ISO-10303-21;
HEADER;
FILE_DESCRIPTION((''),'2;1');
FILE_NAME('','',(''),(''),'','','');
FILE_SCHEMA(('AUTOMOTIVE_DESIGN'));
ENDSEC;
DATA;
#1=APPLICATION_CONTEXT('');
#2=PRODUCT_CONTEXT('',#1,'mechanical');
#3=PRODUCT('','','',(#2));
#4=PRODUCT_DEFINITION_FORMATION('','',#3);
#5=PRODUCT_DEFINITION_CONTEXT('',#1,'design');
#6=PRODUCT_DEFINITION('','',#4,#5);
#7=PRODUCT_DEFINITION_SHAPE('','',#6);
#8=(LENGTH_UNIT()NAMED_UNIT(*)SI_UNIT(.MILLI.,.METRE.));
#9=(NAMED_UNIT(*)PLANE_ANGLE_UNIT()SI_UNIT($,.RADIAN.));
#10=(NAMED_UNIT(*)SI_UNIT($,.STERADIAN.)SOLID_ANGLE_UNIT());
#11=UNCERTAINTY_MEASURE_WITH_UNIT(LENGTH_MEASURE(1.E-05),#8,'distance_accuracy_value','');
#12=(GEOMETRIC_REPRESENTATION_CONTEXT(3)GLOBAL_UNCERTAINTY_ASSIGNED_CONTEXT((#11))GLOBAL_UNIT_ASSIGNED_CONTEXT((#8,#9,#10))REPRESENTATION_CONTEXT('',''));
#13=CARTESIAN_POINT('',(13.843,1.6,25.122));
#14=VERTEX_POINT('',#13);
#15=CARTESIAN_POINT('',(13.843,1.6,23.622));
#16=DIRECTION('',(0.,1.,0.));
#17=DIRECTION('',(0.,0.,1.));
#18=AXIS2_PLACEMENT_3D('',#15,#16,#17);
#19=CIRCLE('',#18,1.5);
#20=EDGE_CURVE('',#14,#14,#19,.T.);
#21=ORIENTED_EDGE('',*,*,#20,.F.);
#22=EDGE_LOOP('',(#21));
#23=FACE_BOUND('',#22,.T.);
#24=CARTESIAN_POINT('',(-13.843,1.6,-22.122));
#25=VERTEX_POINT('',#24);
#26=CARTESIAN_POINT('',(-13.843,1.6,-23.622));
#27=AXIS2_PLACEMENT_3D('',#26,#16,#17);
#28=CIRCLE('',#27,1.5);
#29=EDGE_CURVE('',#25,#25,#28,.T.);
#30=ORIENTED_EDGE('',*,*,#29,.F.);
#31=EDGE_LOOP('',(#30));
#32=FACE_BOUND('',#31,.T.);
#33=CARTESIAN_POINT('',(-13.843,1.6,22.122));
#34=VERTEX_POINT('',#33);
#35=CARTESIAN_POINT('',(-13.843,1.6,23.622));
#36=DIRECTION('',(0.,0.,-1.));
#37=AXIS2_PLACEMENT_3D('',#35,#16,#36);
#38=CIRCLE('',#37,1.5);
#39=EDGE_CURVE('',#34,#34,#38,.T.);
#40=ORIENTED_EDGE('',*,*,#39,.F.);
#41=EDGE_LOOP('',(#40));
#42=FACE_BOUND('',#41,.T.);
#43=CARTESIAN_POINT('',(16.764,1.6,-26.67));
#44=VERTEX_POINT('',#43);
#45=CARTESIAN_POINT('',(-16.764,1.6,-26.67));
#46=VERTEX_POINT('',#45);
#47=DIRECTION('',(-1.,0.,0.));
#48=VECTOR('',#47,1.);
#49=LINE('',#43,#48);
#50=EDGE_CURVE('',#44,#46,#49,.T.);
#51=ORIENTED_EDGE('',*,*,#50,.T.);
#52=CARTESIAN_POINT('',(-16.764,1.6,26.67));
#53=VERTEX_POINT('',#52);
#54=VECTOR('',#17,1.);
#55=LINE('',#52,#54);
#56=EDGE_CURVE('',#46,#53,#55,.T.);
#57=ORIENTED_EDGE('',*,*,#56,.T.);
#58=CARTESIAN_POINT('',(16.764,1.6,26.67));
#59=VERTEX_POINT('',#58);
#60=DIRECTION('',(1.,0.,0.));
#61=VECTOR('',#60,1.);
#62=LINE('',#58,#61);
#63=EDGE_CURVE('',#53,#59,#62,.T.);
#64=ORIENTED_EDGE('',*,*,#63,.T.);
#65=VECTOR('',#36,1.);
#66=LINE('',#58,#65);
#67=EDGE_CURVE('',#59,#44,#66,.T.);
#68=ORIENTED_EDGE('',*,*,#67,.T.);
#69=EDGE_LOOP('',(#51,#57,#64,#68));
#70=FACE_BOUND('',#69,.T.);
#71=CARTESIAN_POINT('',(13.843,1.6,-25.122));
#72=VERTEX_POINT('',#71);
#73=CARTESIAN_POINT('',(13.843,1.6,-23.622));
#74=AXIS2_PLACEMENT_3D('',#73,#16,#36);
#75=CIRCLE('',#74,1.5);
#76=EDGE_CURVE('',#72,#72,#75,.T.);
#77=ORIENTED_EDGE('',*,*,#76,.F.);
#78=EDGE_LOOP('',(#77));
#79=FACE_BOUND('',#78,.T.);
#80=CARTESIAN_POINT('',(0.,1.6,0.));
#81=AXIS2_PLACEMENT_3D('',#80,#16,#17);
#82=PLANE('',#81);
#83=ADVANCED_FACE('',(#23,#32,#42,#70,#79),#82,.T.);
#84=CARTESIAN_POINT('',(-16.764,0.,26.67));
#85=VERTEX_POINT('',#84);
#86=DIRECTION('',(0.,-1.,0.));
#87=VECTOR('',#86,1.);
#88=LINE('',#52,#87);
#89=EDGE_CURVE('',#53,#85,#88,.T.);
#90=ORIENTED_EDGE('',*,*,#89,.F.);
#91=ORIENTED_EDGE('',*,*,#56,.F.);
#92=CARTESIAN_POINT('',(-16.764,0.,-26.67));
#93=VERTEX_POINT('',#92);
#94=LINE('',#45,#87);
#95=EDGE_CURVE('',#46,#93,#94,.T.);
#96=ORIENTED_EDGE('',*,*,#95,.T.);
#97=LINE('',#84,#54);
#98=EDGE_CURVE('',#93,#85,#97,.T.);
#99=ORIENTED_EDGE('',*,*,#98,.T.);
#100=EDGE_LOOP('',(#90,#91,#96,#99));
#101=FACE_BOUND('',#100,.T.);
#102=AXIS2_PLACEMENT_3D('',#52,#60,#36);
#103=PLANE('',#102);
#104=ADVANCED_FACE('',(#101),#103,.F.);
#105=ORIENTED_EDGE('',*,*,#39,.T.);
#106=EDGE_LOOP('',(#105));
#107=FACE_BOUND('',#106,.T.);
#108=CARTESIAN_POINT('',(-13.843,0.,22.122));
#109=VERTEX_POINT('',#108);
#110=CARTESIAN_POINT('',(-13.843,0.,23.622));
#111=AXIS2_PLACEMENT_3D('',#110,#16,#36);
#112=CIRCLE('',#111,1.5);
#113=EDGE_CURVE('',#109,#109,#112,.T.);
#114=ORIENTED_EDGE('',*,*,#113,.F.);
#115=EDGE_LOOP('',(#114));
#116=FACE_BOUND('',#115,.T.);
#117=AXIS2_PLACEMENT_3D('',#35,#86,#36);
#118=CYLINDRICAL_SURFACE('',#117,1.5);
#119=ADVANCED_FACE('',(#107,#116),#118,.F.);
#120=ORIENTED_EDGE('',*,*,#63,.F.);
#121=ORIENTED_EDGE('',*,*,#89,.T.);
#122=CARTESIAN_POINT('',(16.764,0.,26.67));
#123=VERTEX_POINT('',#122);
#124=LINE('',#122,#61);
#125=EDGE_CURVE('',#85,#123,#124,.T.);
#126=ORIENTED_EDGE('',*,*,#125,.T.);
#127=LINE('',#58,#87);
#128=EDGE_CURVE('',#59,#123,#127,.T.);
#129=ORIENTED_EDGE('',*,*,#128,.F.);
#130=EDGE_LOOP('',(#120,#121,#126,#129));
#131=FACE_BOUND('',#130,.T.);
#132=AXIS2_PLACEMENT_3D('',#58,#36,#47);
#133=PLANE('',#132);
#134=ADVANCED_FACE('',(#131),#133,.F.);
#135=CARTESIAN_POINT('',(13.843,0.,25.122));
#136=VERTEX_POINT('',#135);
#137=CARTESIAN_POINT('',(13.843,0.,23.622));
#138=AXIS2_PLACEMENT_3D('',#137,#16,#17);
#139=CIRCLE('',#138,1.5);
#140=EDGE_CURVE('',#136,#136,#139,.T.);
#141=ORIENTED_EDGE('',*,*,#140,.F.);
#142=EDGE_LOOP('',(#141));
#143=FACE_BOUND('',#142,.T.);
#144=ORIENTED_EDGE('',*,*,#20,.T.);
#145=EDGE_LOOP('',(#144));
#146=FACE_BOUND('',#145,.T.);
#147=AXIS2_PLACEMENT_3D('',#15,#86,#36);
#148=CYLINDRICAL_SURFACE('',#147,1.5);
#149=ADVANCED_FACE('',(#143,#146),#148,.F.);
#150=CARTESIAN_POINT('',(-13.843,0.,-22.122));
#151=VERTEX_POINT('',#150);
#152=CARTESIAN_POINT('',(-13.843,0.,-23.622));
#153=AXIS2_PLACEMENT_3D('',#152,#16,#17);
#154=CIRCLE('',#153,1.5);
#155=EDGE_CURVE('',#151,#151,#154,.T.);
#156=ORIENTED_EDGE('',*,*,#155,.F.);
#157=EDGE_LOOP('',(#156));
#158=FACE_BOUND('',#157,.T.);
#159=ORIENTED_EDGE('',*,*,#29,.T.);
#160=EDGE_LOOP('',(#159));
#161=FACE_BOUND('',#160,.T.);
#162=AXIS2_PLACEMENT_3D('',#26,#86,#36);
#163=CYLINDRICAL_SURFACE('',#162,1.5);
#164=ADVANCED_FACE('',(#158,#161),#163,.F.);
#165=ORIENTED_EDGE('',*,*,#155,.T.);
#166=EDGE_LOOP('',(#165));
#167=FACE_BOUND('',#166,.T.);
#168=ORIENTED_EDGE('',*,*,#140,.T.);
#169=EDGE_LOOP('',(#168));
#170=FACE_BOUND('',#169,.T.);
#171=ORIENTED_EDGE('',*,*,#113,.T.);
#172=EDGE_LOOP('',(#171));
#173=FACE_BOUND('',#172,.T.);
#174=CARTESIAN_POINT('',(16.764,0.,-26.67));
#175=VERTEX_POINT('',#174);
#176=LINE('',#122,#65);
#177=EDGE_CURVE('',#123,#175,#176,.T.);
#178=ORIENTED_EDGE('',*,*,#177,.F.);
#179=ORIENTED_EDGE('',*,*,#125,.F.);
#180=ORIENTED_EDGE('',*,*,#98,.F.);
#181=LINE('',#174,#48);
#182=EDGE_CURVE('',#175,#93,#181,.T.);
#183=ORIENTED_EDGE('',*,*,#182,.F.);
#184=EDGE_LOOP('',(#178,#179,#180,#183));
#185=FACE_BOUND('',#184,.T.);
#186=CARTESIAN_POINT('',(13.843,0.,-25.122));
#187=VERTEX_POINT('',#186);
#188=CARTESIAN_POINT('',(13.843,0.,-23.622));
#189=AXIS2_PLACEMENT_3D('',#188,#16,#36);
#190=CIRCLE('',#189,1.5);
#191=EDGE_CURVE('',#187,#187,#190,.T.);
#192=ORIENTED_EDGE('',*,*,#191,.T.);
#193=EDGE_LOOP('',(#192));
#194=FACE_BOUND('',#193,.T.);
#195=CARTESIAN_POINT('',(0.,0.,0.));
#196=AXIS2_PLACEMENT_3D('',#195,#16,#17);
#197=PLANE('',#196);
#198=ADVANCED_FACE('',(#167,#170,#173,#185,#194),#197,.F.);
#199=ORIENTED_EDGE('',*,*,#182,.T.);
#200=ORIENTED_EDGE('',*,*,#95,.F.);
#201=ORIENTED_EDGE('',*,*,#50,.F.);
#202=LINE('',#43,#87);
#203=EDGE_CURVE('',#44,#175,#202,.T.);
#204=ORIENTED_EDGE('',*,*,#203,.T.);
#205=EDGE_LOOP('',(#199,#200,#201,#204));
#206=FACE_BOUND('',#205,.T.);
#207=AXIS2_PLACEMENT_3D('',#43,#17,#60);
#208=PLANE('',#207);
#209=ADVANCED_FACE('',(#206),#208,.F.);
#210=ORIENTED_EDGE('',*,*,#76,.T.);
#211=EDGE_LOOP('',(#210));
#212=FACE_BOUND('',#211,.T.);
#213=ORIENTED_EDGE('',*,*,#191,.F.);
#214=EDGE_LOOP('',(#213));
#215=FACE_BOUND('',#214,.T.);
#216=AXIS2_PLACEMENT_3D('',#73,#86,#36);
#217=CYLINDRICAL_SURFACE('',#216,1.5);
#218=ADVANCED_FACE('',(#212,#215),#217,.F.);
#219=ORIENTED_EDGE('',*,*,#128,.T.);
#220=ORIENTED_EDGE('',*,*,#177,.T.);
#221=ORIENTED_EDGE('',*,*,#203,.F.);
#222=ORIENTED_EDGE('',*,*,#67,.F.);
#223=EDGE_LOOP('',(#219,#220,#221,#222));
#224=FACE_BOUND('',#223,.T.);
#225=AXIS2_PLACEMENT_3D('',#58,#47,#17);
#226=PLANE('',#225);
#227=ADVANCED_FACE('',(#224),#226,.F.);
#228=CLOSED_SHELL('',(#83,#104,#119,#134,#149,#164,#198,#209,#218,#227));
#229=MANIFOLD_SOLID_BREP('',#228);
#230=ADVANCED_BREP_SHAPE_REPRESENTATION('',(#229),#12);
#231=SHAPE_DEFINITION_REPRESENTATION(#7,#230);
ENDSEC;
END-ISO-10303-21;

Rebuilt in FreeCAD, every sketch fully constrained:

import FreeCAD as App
import Part
import Sketcher

V = App.Vector


def add_polygon(sketch, points):
    """Adds a closed chain of lines whose ends are joined by coincident constraints."""
    first, n = sketch.GeometryCount, len(points)
    for a, b in zip(points, points[1:] + points[:1]):
        sketch.addGeometry(Part.LineSegment(App.Vector(*a, 0), App.Vector(*b, 0)), False)
    for i in range(n):
        sketch.addConstraint(Sketcher.Constraint("Coincident", first + i, 2, first + (i + 1) % n, 1))

doc = App.newDocument("Part")
params = doc.addObject("Spreadsheet::Sheet", "Params")
for row, (alias, value) in enumerate([
    ("sketch1_diameter", "3 mm"),
    ("sketch1_height", "53.34 mm"),
    ("pad1_length", "1.6 mm"),
], start=1):
    params.set(f"A{row}", alias)
    params.set(f"B{row}", "=" + value)
    params.setAlias(f"B{row}", alias)

body = doc.addObject("PartDesign::Body", "Body")

# Sketch on XZ plane
sketch1 = body.newObject("Sketcher::SketchObject", "Sketch")
sketch1.AttachmentSupport = (doc.getObject("XZ_Plane"), [""])
sketch1.MapMode = "FlatFace"
add_polygon(sketch1, [(-16.8, -26.7), (-16.8, 26.7), (16.8, 26.7), (16.8, -26.7)])  # lines 0-3
sketch1.addGeometry(Part.Circle(V(-13.8, 23.6, 0), V(0, 0, 1), 1.5), False)  # 4
sketch1.addGeometry(Part.Circle(V(13.8, 23.6, 0), V(0, 0, 1), 1.5), False)  # 5
sketch1.addGeometry(Part.Circle(V(-13.8, -23.6, 0), V(0, 0, 1), 1.5), False)  # 6
sketch1.addGeometry(Part.Circle(V(13.8, -23.6, 0), V(0, 0, 1), 1.5), False)  # 7
sketch1.addConstraint([
    Sketcher.Constraint("Vertical", 0),
    Sketcher.Constraint("Horizontal", 1),
    Sketcher.Constraint("Vertical", 2),
    Sketcher.Constraint("Horizontal", 3),
    Sketcher.Constraint("Equal", 4, 5),
    Sketcher.Constraint("Equal", 5, 6),
    Sketcher.Constraint("Equal", 6, 7),
    Sketcher.Constraint("Symmetric", 5, 3, 6, 3, -1, 1),
    Sketcher.Constraint("Symmetric", 4, 3, 7, 3, -1, 1),
    Sketcher.Constraint("Symmetric", 0, 2, 2, 2, -1, 1),
    Sketcher.Constraint("Symmetric", 4, 3, 5, 3, -2),
    Sketcher.Constraint("Diameter", 4, 3.0),
    Sketcher.Constraint("DistanceY", 0, 1, 0, 2, 53.34),
    Sketcher.Constraint("DistanceX", 1, 1, 1, 2, 33.528),
    Sketcher.Constraint("DistanceX", 4, 3, -1, 1, 13.843),
    Sketcher.Constraint("DistanceY", -1, 1, 4, 3, 23.622),
])
sketch1.setExpression("Constraints[15]", "Params.sketch1_diameter")
sketch1.setExpression("Constraints[16]", "Params.sketch1_height")
pad1 = body.newObject("PartDesign::Pad", "Pad")
pad1.Profile = sketch1
pad1.setExpression("Length", "Params.pad1_length")
pad1.Reversed = True

doc.recompute()
